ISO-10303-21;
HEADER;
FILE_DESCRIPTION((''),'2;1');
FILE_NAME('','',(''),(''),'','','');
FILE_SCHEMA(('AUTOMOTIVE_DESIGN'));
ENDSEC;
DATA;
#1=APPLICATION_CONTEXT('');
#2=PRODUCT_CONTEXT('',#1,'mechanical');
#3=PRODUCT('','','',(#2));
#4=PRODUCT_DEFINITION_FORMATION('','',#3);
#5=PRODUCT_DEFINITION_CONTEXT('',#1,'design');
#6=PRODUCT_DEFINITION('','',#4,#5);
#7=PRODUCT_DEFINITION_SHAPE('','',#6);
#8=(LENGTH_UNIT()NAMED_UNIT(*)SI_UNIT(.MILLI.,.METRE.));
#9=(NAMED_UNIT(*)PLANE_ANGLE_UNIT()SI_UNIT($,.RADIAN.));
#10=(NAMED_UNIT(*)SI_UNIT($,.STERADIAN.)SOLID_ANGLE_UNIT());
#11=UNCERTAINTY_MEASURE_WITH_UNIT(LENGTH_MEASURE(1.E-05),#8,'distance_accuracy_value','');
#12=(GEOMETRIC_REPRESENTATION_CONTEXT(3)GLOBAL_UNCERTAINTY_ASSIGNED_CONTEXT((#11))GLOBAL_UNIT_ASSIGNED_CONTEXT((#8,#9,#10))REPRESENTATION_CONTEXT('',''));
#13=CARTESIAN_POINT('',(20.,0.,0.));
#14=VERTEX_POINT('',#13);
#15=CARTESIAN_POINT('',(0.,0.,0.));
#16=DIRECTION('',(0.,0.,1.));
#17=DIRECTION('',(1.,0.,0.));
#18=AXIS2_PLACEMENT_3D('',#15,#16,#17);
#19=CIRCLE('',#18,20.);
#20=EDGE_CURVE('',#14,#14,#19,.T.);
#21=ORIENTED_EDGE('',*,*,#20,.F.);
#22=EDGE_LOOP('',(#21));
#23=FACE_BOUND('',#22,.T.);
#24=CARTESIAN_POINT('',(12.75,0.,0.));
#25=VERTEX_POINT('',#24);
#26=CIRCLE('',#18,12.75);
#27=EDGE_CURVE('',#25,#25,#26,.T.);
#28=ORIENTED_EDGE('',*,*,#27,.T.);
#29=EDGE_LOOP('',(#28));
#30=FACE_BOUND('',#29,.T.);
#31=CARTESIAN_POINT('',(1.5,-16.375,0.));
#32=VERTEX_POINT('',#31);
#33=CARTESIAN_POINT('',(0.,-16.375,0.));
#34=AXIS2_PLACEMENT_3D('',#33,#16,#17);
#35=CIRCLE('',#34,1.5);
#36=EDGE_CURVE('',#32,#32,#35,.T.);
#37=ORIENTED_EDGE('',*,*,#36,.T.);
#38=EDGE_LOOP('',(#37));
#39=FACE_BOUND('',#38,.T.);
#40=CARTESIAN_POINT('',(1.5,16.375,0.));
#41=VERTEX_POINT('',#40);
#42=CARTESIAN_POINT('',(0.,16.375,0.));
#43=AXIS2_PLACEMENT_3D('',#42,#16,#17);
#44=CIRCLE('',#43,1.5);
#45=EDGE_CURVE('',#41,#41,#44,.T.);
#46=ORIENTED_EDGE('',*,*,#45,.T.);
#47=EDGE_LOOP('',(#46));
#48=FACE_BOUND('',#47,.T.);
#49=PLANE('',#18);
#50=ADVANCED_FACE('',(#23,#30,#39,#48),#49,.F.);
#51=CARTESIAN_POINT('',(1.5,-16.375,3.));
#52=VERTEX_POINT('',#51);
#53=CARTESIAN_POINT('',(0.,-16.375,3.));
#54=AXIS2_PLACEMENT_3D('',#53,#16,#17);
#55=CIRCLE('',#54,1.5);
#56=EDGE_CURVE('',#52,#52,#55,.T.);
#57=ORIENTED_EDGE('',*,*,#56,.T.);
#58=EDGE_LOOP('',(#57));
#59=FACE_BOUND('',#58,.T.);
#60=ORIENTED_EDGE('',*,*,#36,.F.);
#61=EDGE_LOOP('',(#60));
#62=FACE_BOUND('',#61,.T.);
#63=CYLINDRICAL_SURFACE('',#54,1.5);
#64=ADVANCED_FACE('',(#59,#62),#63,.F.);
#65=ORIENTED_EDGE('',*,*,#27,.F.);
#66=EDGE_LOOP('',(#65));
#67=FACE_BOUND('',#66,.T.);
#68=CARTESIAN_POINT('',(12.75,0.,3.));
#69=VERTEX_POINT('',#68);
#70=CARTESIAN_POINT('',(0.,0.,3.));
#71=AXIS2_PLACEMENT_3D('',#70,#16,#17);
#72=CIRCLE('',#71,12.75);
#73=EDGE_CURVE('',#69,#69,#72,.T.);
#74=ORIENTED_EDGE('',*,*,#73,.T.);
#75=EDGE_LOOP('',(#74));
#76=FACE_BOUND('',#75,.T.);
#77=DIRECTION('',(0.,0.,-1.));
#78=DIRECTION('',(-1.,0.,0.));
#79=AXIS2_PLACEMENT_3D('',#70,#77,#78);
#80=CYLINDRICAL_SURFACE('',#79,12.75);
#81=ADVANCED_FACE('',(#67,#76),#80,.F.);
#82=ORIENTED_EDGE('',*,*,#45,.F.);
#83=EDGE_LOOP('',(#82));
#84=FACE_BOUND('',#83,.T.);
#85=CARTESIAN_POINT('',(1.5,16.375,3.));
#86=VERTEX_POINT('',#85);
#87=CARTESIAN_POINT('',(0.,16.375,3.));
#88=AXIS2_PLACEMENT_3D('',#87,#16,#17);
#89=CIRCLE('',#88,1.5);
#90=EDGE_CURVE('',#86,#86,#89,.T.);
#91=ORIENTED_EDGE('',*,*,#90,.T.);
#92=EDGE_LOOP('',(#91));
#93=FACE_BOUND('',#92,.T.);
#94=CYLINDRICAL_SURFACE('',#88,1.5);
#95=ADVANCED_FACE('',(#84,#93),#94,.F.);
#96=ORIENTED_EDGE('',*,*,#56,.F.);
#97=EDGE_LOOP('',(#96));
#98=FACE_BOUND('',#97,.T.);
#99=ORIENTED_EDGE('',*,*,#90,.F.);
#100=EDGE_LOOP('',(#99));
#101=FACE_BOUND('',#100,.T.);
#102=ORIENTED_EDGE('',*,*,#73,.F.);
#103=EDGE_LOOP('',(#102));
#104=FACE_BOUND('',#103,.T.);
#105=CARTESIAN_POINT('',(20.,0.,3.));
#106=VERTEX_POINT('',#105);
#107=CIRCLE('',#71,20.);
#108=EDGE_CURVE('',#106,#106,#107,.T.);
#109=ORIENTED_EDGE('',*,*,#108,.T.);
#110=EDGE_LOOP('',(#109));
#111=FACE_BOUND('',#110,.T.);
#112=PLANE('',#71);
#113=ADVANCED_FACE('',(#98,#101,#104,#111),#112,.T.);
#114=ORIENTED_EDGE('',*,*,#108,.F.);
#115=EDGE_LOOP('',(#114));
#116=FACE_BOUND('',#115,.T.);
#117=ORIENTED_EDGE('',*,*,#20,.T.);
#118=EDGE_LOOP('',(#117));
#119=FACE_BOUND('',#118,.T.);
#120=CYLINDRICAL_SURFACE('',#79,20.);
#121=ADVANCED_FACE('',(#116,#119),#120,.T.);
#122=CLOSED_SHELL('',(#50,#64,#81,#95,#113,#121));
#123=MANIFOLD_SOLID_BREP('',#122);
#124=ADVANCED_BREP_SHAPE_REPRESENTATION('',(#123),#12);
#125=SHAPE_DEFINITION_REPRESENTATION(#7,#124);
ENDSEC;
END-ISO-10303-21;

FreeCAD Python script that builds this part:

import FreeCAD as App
import Part
import Sketcher
Q = App.Units.Quantity

doc = App.newDocument("Part")
body = doc.addObject("PartDesign::Body", "Body")

# Sketch on XY plane
sketch1 = body.newObject("Sketcher::SketchObject", "Sketch")
sketch1.AttachmentSupport = (doc.getObject("XY_Plane"), [""])
sketch1.MapMode = "FlatFace"
sketch1.addGeometry([
    Part.Circle(App.Vector(0, 0, 0), App.Vector(0, 0, 1), 20),
    Part.Circle(App.Vector(0, 0, 0), App.Vector(0, 0, 1), 13),
], False)
sketch1.addConstraint([
    Sketcher.Constraint("Coincident", 0, 3, -1, 1),
    Sketcher.Constraint("Coincident", 1, 3, -1, 1),
    Sketcher.Constraint("Diameter", 0, Q("40 mm")),
    Sketcher.Constraint("Diameter", 1, Q("25.5 mm")),
])
pad1 = body.newObject("PartDesign::Pad", "Pad")
pad1.Profile = sketch1
pad1.Length = 3

# Sketch on XY plane
sketch2 = body.newObject("Sketcher::SketchObject", "Sketch001")
sketch2.AttachmentSupport = (doc.getObject("XY_Plane"), [""])
sketch2.MapMode = "FlatFace"
sketch2.AttachmentOffset = App.Placement(App.Vector(0, 0, 3), App.Rotation())
sketch2.addGeometry([
    Part.Circle(App.Vector(0, 16.4, 0), App.Vector(0, 0, 1), 1.5),
    Part.Circle(App.Vector(0, -16.4, 0), App.Vector(0, 0, 1), 1.5),
], False)
sketch2.addConstraint([
    Sketcher.Constraint("Equal", 0, 1),
    Sketcher.Constraint("Symmetric", 0, 3, 1, 3, -1, 1),
    Sketcher.Constraint("PointOnObject", 0, 3, -2),
    Sketcher.Constraint("Diameter", 0, Q("3 mm")),
    Sketcher.Constraint("DistanceY", 1, 3, 0, 3, Q("32.75 mm")),
])
doc.recompute()
hole = body.newObject("PartDesign::Hole", "Hole")
hole.Profile = sketch2
hole.ThreadType = "None"
hole.Diameter = 3
hole.DepthType = "ThroughAll"

doc.recompute()
